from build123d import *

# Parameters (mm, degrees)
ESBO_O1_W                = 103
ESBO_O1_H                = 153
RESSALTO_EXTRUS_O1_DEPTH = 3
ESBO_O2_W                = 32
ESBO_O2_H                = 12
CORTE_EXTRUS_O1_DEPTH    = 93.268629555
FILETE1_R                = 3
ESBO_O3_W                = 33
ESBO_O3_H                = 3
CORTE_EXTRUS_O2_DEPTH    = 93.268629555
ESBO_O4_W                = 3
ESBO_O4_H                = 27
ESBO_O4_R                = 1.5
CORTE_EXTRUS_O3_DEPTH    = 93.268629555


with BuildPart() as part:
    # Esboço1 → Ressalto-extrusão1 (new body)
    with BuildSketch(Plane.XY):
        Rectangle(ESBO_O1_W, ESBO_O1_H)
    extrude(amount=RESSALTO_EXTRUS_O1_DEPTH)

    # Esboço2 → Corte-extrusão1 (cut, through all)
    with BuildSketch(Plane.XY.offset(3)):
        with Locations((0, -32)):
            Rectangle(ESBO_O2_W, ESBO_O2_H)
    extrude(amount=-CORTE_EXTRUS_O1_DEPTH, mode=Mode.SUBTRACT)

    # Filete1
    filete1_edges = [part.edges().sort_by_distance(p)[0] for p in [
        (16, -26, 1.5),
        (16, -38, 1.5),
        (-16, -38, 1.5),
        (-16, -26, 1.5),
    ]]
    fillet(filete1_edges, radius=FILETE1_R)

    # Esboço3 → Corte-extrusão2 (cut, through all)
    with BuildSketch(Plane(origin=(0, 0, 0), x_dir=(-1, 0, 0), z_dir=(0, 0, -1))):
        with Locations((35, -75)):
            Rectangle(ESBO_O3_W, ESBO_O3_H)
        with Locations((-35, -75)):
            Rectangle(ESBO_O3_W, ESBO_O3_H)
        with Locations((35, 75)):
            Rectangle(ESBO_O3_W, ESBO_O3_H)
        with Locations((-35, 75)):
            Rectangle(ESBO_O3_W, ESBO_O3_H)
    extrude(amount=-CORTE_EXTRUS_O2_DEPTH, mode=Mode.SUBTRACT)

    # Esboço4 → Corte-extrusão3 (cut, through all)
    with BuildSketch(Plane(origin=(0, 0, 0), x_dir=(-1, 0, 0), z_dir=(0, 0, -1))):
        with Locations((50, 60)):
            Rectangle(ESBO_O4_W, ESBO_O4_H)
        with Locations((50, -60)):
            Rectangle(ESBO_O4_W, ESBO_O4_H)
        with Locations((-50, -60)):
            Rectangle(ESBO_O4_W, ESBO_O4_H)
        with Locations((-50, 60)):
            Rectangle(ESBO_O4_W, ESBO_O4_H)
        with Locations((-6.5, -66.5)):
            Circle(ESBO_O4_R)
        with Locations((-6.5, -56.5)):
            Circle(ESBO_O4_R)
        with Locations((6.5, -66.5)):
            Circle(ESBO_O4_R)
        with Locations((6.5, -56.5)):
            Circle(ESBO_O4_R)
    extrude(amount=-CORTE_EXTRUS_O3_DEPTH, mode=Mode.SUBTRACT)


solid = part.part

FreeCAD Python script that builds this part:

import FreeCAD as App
import Part
import Sketcher

V = App.Vector
Q = App.Units.Quantity


def edges_at(feature, points):
    """Names of the edges that pass closest to the given points."""
    edges = feature.Shape.Edges
    near = lambda p: min(range(len(edges)), key=lambda i: edges[i].distToShape(Part.Vertex(*p))[0])
    return sorted({f"Edge{near(p) + 1}" for p in points})


def add_polygon(sketch, points):
    """Adds a closed chain of lines whose ends are joined by coincident constraints."""
    first, n = sketch.GeometryCount, len(points)
    for a, b in zip(points, points[1:] + points[:1]):
        sketch.addGeometry(Part.LineSegment(App.Vector(*a, 0), App.Vector(*b, 0)), False)
    for i in range(n):
        sketch.addConstraint(Sketcher.Constraint("Coincident", first + i, 2, first + (i + 1) % n, 1))

doc = App.newDocument("Part")
body = doc.addObject("PartDesign::Body", "Body")

sketch1 = body.newObject("Sketcher::SketchObject", "Sketch")
sketch1.AttachmentSupport = (doc.getObject("XY_Plane"), [""])
sketch1.MapMode = "FlatFace"
add_polygon(sketch1, [(-52, 76), (-52, -76), (52, -76), (52, 76)])
sketch1.addConstraint([
    Sketcher.Constraint("Vertical", 0),
    Sketcher.Constraint("Horizontal", 1),
    Sketcher.Constraint("Vertical", 2),
    Sketcher.Constraint("Horizontal", 3),
    Sketcher.Constraint("Symmetric", 0, 2, 2, 2, -1, 1),
    Sketcher.Constraint("DistanceX", 1, 1, 1, 2, Q("103 mm")),
    Sketcher.Constraint("DistanceY", 0, 2, 0, 1, Q("153 mm")),
])
pad1 = body.newObject("PartDesign::Pad", "Pad")
pad1.Profile = sketch1
pad1.Length = 3

sketch2 = body.newObject("Sketcher::SketchObject", "Sketch001")
sketch2.AttachmentSupport = (doc.getObject("XY_Plane"), [""])
sketch2.MapMode = "FlatFace"
sketch2.AttachmentOffset = App.Placement(V(0, 0, 3), App.Rotation())
add_polygon(sketch2, [(-16, -26), (-16, -38), (16, -38), (16, -26)])
sketch2.addConstraint([
    Sketcher.Constraint("Vertical", 0),
    Sketcher.Constraint("Horizontal", 1),
    Sketcher.Constraint("Vertical", 2),
    Sketcher.Constraint("Horizontal", 3),
    Sketcher.Constraint("DistanceX", 1, 1, 1, 2, Q("32 mm")),
    Sketcher.Constraint("DistanceY", 0, 2, 0, 1, Q("12 mm")),
    Sketcher.Constraint("DistanceX", 0, 2, -1, 1, Q("16 mm")),
    Sketcher.Constraint("DistanceY", 0, 2, -1, 1, Q("38 mm")),
])
pocket1 = body.newObject("PartDesign::Pocket", "Pocket")
pocket1.Profile = sketch2
pocket1.Type = "ThroughAll"
doc.recompute()

fillet = body.newObject("PartDesign::Fillet", "Fillet")
fillet.Base = (pocket1, edges_at(pocket1, [
    (16, -26, 1.5),
    (16, -38, 1.5),
    (-16, -38, 1.5),
    (-16, -26, 1.5),
]))
fillet.Radius = 3

sketch3 = body.newObject("Sketcher::SketchObject", "Sketch002")
sketch3.AttachmentSupport = (doc.getObject("XY_Plane"), [""])
sketch3.MapMode = "FlatFace"
add_polygon(sketch3, [(-18.5, -73.5), (-18.5, -76.5), (-51.5, -76.5), (-51.5, -73.5)])
add_polygon(sketch3, [(51.5, -73.5), (51.5, -76.5), (18.5, -76.5), (18.5, -73.5)])
add_polygon(sketch3, [(-18.5, 76.5), (-18.5, 73.5), (-51.5, 73.5), (-51.5, 76.5)])
add_polygon(sketch3, [(51.5, 76.5), (51.5, 73.5), (18.5, 73.5), (18.5, 76.5)])
sketch3.addConstraint([
    Sketcher.Constraint("Vertical", 0),
    Sketcher.Constraint("Horizontal", 1),
    Sketcher.Constraint("Vertical", 2),
    Sketcher.Constraint("Horizontal", 3),
    Sketcher.Constraint("Vertical", 4),
    Sketcher.Constraint("Horizontal", 5),
    Sketcher.Constraint("Vertical", 6),
    Sketcher.Constraint("Horizontal", 7),
    Sketcher.Constraint("Vertical", 8),
    Sketcher.Constraint("Horizontal", 9),
    Sketcher.Constraint("Vertical", 10),
    Sketcher.Constraint("Horizontal", 11),
    Sketcher.Constraint("Vertical", 12),
    Sketcher.Constraint("Horizontal", 13),
    Sketcher.Constraint("Vertical", 14),
    Sketcher.Constraint("Horizontal", 15),
    Sketcher.Constraint("Symmetric", 6, 2, 8, 2, -1, 1),
    Sketcher.Constraint("Symmetric", 4, 2, 10, 2, -1, 1),
    Sketcher.Constraint("Symmetric", 2, 2, 12, 2, -1, 1),
    Sketcher.Constraint("Symmetric", 0, 2, 14, 2, -1, 1),
    Sketcher.Constraint("Symmetric", 1, 2, 4, 2, -2),
    Sketcher.Constraint("Symmetric", 3, 2, 6, 2, -2),
    Sketcher.Constraint("DistanceX", 1, 2, 1, 1, Q("33 mm")),
    Sketcher.Constraint("DistanceY", 0, 2, 0, 1, Q("3 mm")),
    Sketcher.Constraint("DistanceX", 0, 2, 4, 2, Q("70 mm")),
    Sketcher.Constraint("DistanceY", 3, 2, 8, 2, Q("147 mm")),
])
pocket2 = body.newObject("PartDesign::Pocket", "Pocket001")
pocket2.Profile = sketch3
pocket2.Type = "ThroughAll"
pocket2.Reversed = True

sketch4 = body.newObject("Sketcher::SketchObject", "Sketch003")
sketch4.AttachmentSupport = (doc.getObject("XY_Plane"), [""])
sketch4.MapMode = "FlatFace"
add_polygon(sketch4, [(-48.5, 73.5), (-48.5, 46.5), (-51.5, 46.5), (-51.5, 73.5)])
add_polygon(sketch4, [(-48.5, -46.5), (-48.5, -73.5), (-51.5, -73.5), (-51.5, -46.5)])
add_polygon(sketch4, [(51.5, -46.5), (51.5, -73.5), (48.5, -73.5), (48.5, -46.5)])
add_polygon(sketch4, [(51.5, 73.5), (51.5, 46.5), (48.5, 46.5), (48.5, 73.5)])
sketch4.addGeometry(Part.Circle(V(6.5, -66.5, 0), V(0, 0, 1), 1.5), False)
sketch4.addGeometry(Part.Circle(V(6.5, -56.5, 0), V(0, 0, 1), 1.5), False)
sketch4.addGeometry(Part.Circle(V(-6.5, -66.5, 0), V(0, 0, 1), 1.5), False)
sketch4.addGeometry(Part.Circle(V(-6.5, -56.5, 0), V(0, 0, 1), 1.5), False)
sketch4.addConstraint([
    Sketcher.Constraint("Vertical", 0),
    Sketcher.Constraint("Horizontal", 1),
    Sketcher.Constraint("Vertical", 2),
    Sketcher.Constraint("Horizontal", 3),
    Sketcher.Constraint("Vertical", 4),
    Sketcher.Constraint("Horizontal", 5),
    Sketcher.Constraint("Vertical", 6),
    Sketcher.Constraint("Horizontal", 7),
    Sketcher.Constraint("Vertical", 8),
    Sketcher.Constraint("Horizontal", 9),
    Sketcher.Constraint("Vertical", 10),
    Sketcher.Constraint("Horizontal", 11),
    Sketcher.Constraint("Vertical", 12),
    Sketcher.Constraint("Horizontal", 13),
    Sketcher.Constraint("Vertical", 14),
    Sketcher.Constraint("Horizontal", 15),
    Sketcher.Constraint("Equal", 16, 17),
    Sketcher.Constraint("Equal", 17, 18),
    Sketcher.Constraint("Equal", 18, 19),
    Sketcher.Constraint("Symmetric", 2, 2, 8, 2, -1, 1),
    Sketcher.Constraint("Symmetric", 0, 2, 10, 2, -1, 1),
    Sketcher.Constraint("Symmetric", 6, 2, 12, 2, -1, 1),
    Sketcher.Constraint("Symmetric", 4, 2, 14, 2, -1, 1),
    Sketcher.Constraint("Symmetric", 16, 3, 18, 3, -2),
    Sketcher.Constraint("Symmetric", 17, 3, 19, 3, -2),
    Sketcher.Constraint("Symmetric", 5, 2, 8, 2, -2),
    Sketcher.Constraint("Symmetric", 7, 2, 10, 2, -2),
    Sketcher.Constraint("Vertical", 16, 3, 17, 3),
    Sketcher.Constraint("Diameter", 16, Q("3 mm")),
    Sketcher.Constraint("DistanceX", 1, 2, 1, 1, Q("3 mm")),
    Sketcher.Constraint("DistanceY", 0, 2, 0, 1, Q("27 mm")),
    Sketcher.Constraint("DistanceY", 16, 3, 17, 3, Q("10 mm")),
    Sketcher.Constraint("DistanceX", 18, 3, 16, 3, Q("13 mm")),
    Sketcher.Constraint("DistanceX", 0, 2, 19, 3, Q("42 mm")),
    Sketcher.Constraint("DistanceY", 19, 3, 0, 2, Q("103 mm")),
    Sketcher.Constraint("DistanceY", 4, 2, 18, 3, Q("7 mm")),
])
pocket3 = body.newObject("PartDesign::Pocket", "Pocket002")
pocket3.Profile = sketch4
pocket3.Type = "ThroughAll"
pocket3.Reversed = True

doc.recompute()
